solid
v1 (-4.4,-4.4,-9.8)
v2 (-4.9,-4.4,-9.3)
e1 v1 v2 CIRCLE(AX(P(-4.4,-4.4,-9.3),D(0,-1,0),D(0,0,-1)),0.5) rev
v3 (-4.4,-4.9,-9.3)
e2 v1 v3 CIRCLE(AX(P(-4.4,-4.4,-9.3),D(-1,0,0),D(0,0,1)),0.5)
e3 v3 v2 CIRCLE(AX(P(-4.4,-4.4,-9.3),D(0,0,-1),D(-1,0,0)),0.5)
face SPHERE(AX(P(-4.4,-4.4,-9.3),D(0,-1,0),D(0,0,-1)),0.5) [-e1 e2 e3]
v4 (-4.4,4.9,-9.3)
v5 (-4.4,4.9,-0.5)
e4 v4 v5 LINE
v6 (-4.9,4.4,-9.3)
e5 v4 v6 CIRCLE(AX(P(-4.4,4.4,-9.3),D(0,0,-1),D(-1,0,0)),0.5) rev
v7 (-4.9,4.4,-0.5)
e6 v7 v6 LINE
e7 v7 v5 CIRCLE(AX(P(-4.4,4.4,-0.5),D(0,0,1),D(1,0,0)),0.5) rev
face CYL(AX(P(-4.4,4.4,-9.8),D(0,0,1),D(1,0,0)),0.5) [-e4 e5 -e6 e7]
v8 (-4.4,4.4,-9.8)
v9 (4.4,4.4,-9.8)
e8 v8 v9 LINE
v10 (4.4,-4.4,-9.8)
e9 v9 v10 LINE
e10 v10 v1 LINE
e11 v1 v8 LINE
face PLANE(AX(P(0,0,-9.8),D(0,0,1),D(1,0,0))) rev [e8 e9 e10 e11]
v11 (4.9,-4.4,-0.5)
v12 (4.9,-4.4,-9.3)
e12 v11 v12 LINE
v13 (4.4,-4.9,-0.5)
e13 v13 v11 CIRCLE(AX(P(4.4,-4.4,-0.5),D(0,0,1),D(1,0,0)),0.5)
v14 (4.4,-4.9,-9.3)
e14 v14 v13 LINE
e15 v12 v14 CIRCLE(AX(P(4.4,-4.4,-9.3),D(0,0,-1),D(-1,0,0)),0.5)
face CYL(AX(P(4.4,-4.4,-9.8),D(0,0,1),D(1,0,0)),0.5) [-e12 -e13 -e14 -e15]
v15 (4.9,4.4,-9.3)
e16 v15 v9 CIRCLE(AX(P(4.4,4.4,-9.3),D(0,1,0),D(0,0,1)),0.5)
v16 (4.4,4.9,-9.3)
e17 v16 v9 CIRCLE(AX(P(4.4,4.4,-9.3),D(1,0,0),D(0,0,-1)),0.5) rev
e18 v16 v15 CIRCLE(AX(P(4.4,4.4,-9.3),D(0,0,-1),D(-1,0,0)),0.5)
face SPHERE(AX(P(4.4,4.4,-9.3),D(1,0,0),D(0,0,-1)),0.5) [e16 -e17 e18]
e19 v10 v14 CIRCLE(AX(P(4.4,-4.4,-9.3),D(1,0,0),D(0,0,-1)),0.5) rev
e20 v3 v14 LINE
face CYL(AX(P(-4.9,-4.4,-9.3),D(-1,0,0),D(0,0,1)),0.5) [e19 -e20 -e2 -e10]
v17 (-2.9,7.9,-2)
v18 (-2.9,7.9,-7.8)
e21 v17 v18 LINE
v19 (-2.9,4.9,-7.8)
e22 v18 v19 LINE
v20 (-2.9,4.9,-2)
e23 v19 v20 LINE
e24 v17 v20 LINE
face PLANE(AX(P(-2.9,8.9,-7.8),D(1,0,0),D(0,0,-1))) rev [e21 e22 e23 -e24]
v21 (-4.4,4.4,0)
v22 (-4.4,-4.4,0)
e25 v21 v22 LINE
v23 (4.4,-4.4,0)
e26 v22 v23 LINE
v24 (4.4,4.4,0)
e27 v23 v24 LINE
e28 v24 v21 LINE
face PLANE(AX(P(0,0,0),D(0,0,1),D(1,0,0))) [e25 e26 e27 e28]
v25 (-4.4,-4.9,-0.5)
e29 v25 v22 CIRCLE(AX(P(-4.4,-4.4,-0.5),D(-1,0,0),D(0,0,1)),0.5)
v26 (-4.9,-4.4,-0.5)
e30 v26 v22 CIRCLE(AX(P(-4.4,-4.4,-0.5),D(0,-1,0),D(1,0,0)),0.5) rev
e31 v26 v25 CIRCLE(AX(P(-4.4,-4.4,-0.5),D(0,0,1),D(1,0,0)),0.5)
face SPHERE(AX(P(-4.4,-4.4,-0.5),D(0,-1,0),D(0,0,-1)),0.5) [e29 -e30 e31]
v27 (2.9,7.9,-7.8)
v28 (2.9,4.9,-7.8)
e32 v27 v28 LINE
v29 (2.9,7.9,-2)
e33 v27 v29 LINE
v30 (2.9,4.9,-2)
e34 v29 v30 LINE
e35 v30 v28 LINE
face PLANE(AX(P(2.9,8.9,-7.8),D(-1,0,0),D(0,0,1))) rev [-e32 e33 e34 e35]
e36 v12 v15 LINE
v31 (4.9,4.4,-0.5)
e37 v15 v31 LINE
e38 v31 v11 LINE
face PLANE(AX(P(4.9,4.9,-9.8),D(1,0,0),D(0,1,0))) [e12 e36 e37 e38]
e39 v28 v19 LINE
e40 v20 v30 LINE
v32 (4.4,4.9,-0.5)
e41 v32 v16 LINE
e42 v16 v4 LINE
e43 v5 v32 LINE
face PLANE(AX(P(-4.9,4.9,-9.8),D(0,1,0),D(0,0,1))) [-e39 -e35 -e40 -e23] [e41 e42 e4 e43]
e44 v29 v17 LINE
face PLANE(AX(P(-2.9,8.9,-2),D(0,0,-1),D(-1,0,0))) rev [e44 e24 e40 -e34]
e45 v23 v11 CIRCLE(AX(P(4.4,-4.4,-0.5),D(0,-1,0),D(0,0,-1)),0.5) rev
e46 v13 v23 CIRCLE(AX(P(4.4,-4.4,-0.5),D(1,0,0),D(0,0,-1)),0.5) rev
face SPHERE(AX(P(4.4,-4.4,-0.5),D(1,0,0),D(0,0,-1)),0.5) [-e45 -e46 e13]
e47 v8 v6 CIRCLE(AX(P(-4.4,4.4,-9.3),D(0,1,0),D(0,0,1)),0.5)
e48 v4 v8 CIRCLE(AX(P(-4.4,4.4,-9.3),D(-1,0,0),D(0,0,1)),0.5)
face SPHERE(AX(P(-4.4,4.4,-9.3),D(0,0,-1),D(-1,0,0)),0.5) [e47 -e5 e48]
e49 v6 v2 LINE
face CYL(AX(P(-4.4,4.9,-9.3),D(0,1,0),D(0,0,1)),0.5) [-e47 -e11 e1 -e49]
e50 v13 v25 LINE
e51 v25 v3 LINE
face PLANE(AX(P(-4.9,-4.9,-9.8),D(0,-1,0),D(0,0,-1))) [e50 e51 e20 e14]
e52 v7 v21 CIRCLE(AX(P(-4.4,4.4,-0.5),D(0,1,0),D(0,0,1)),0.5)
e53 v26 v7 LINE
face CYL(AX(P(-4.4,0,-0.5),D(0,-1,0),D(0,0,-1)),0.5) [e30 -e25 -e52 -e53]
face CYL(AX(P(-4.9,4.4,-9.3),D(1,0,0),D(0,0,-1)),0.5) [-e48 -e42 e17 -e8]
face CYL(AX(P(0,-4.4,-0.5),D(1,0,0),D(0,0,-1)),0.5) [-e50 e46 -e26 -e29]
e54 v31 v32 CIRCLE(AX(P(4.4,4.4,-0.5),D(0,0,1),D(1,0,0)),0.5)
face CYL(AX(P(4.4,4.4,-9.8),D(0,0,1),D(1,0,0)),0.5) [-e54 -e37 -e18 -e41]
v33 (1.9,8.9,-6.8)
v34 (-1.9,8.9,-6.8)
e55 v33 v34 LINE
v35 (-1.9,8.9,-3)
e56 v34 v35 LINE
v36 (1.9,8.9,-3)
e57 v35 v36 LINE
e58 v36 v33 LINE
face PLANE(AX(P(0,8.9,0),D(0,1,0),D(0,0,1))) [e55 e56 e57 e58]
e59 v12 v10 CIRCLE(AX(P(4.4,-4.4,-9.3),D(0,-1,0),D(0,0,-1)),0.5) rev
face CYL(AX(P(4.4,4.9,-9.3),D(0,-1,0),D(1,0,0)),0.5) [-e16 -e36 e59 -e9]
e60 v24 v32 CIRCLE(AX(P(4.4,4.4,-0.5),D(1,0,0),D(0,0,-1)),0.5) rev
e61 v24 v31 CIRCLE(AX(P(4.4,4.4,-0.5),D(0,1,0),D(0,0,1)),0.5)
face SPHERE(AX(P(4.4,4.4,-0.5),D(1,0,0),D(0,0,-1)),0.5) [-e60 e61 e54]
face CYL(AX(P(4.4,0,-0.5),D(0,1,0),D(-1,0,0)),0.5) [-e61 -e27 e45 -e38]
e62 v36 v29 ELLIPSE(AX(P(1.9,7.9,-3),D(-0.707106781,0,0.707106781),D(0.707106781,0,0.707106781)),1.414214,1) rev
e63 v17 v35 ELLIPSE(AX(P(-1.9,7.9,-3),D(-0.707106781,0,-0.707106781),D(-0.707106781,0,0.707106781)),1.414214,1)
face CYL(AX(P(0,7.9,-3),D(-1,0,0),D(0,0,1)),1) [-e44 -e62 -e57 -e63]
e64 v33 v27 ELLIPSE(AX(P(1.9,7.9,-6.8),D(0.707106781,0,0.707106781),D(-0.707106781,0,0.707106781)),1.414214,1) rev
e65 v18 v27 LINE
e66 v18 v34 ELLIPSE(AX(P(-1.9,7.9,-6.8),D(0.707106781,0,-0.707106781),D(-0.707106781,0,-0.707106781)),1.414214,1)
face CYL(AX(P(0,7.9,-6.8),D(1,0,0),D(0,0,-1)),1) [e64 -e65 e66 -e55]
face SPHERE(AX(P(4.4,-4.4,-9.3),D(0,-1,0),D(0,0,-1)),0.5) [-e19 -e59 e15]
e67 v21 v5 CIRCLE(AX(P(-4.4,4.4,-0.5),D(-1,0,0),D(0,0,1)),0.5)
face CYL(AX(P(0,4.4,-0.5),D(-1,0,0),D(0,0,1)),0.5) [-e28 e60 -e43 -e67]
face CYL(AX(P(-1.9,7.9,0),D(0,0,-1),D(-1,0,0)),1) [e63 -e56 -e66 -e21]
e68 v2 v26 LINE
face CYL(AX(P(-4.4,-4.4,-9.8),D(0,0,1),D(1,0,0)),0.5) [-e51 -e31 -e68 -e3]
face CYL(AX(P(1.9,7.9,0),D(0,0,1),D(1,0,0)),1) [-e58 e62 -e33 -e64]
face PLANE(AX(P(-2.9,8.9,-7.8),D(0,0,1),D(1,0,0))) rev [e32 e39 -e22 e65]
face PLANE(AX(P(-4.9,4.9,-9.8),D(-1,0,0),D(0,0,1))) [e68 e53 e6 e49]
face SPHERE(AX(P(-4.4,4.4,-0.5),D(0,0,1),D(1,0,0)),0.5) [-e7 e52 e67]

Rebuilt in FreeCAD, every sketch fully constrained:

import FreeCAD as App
import Part
import Sketcher

V = App.Vector


def edges_at(feature, points):
    """Names of the edges that pass closest to the given points."""
    edges = feature.Shape.Edges
    near = lambda p: min(range(len(edges)), key=lambda i: edges[i].distToShape(Part.Vertex(*p))[0])
    return sorted({f"Edge{near(p) + 1}" for p in points})


def add_polygon(sketch, points):
    """Adds a closed chain of lines whose ends are joined by coincident constraints."""
    first, n = sketch.GeometryCount, len(points)
    for a, b in zip(points, points[1:] + points[:1]):
        sketch.addGeometry(Part.LineSegment(App.Vector(*a, 0), App.Vector(*b, 0)), False)
    for i in range(n):
        sketch.addConstraint(Sketcher.Constraint("Coincident", first + i, 2, first + (i + 1) % n, 1))

doc = App.newDocument("Part")
params = doc.addObject("Spreadsheet::Sheet", "Params")
for row, (alias, value) in enumerate([
    ("sketch1_width", "9.8 mm"),
    ("pad1_length", "9.8 mm"),
    ("sketch2_width", "5.8 mm"),
    ("pad2_length", "4 mm"),
    ("fillet_radius", "1 mm"),
    ("fillet2_radius", "0.5 mm"),
], start=1):
    params.set(f"A{row}", alias)
    params.set(f"B{row}", "=" + value)
    params.setAlias(f"B{row}", alias)

body = doc.addObject("PartDesign::Body", "Body")

sketch1 = body.newObject("Sketcher::SketchObject", "Sketch")
sketch1.AttachmentSupport = (doc.getObject("XY_Plane"), [""])
sketch1.MapMode = "FlatFace"
add_polygon(sketch1, [(-5, 5), (-5, -5), (5, -5), (5, 5)])
sketch1.addConstraint([
    Sketcher.Constraint("Vertical", 0),
    Sketcher.Constraint("Horizontal", 1),
    Sketcher.Constraint("Vertical", 2),
    Sketcher.Constraint("Horizontal", 3),
    Sketcher.Constraint("Symmetric", 0, 2, 2, 2, -1, 1),
    Sketcher.Constraint("Equal", 3, 0),
    Sketcher.Constraint("DistanceX", 1, 1, 1, 2, 9.8),
])
sketch1.setExpression("Constraints[10]", "Params.sketch1_width")
pad1 = body.newObject("PartDesign::Pad", "Pad")
pad1.Profile = sketch1
pad1.setExpression("Length", "Params.pad1_length")
pad1.Reversed = True

sketch2 = body.newObject("Sketcher::SketchObject", "Sketch001")
sketch2.AttachmentSupport = (doc.getObject("XZ_Plane"), [""])
sketch2.MapMode = "FlatFace"
sketch2.AttachmentOffset = App.Placement(V(0, 0, -4.9), App.Rotation())
add_polygon(sketch2, [(-3, -8), (-3, -2), (3, -2), (3, -8)])
sketch2.addConstraint([
    Sketcher.Constraint("Vertical", 0),
    Sketcher.Constraint("Horizontal", 1),
    Sketcher.Constraint("Vertical", 2),
    Sketcher.Constraint("Horizontal", 3),
    Sketcher.Constraint("Equal", 3, 0),
    Sketcher.Constraint("DistanceX", 1, 1, 1, 2, 5.8),
    Sketcher.Constraint("DistanceY", 0, 2, -1, 1, 2.0),
    Sketcher.Constraint("DistanceX", 0, 2, -1, 1, 2.9),
])
sketch2.setExpression("Constraints[9]", "Params.sketch2_width")
pad2 = body.newObject("PartDesign::Pad", "Pad001")
pad2.Profile = sketch2
pad2.setExpression("Length", "Params.pad2_length")
pad2.Reversed = True
doc.recompute()

fillet = body.newObject("PartDesign::Fillet", "Fillet")
fillet.Base = (pad2, edges_at(pad2, [
    (2.9, 8.9, -4.9),
    (0, 8.9, -7.8),
    (-2.9, 8.9, -4.9),
    (0, 8.9, -2),
]))
fillet.setExpression("Radius", "Params.fillet_radius")
doc.recompute()

fillet2 = body.newObject("PartDesign::Fillet", "Fillet001")
fillet2.Base = (fillet, edges_at(fillet, [
    (-4.9, 0, -9.8),
    (0, -4.9, -9.8),
    (4.9, 0, -9.8),
    (0, -4.9, 0),
    (-4.9, 0, 0),
    (0, 4.9, 0),
    (4.9, 0, 0),
    (4.9, -4.9, -4.9),
    (-4.9, -4.9, -4.9),
    (-4.9, 4.9, -4.9),
    (4.9, 4.9, -4.9),
    (0, 4.9, -9.8),
]))
fillet2.setExpression("Radius", "Params.fillet2_radius")

doc.recompute()
